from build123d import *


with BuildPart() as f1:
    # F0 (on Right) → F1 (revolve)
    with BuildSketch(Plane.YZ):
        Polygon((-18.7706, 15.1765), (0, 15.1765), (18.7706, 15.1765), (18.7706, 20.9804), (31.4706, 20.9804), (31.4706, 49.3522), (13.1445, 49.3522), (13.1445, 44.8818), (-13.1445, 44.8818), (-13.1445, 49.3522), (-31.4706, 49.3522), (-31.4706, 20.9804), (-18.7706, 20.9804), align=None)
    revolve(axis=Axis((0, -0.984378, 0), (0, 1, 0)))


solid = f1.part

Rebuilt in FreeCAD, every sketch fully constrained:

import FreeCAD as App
import Part
import Sketcher

V = App.Vector
Q = App.Units.Quantity


def add_polygon(sketch, points):
    """Adds a closed chain of lines whose ends are joined by coincident constraints."""
    first, n = sketch.GeometryCount, len(points)
    for a, b in zip(points, points[1:] + points[:1]):
        sketch.addGeometry(Part.LineSegment(App.Vector(*a, 0), App.Vector(*b, 0)), False)
    for i in range(n):
        sketch.addConstraint(Sketcher.Constraint("Coincident", first + i, 2, first + (i + 1) % n, 1))

doc = App.newDocument("Part")
params = doc.addObject("Spreadsheet::Sheet", "Params")
for row, (alias, value) in enumerate([
    ("sketch1_width", "0.5 in"),
    ("sketch1_width2", "1.478 in"),
    ("sketch1_width3", "1.035 in"),
    ("sketch1_height", "1.117 in"),
    ("sketch1_height2", "0.176 in"),
    ("revolution_angle", "360 deg"),
], start=1):
    params.set(f"A{row}", alias)
    params.set(f"B{row}", "=" + value)
    params.setAlias(f"B{row}", alias)

body = doc.addObject("PartDesign::Body", "Body")

sketch1 = doc.addObject("Sketcher::SketchObject", "Sketch")
body.addObject(sketch1)
sketch1.AttachmentSupport = (doc.YZ_Plane, [""])
sketch1.MapMode = "FlatFace"
add_polygon(sketch1, [(-18.8, 15.2), (18.8, 15.2), (18.8, 21), (31.5, 21), (31.5, 49.4), (13.1, 49.4), (13.1, 44.9), (-13.1, 44.9), (-13.1, 49.4), (-31.5, 49.4), (-31.5, 21), (-18.8, 21)])
sketch1.addConstraint([
    Sketcher.Constraint("Horizontal", 0),
    Sketcher.Constraint("Vertical", 1),
    Sketcher.Constraint("Horizontal", 2),
    Sketcher.Constraint("Vertical", 3),
    Sketcher.Constraint("Horizontal", 4),
    Sketcher.Constraint("Vertical", 5),
    Sketcher.Constraint("Horizontal", 6),
    Sketcher.Constraint("Vertical", 7),
    Sketcher.Constraint("Horizontal", 8),
    Sketcher.Constraint("Vertical", 9),
    Sketcher.Constraint("Horizontal", 10),
    Sketcher.Constraint("Vertical", 11),
    Sketcher.Constraint("Symmetric", 4, 2, 7, 2, -2),
    Sketcher.Constraint("Symmetric", 2, 2, 9, 2, -2),
    Sketcher.Constraint("Equal", 2, 10),
    Sketcher.Constraint("DistanceX", 2, 1, 2, 2, Q("0.5 in")),
    Sketcher.Constraint("DistanceX", 0, 1, 0, 2, Q("1.478 in")),
    Sketcher.Constraint("DistanceX", 6, 2, 6, 1, Q("1.035 in")),
    Sketcher.Constraint("DistanceY", 3, 1, 3, 2, Q("1.117 in")),
    Sketcher.Constraint("DistanceY", 5, 2, 5, 1, Q("0.176 in")),
    Sketcher.Constraint("DistanceY", 1, 1, 1, 2, Q("0.2285 in")),
    Sketcher.Constraint("DistanceY", -1, 1, 1, 2, Q("0.826 in")),
])
sketch1.setExpression("Constraints[27]", "Params.sketch1_width")
sketch1.setExpression("Constraints[28]", "Params.sketch1_width2")
sketch1.setExpression("Constraints[29]", "Params.sketch1_width3")
sketch1.setExpression("Constraints[30]", "Params.sketch1_height")
sketch1.setExpression("Constraints[31]", "Params.sketch1_height2")
revolution = doc.addObject("PartDesign::Revolution", "Revolution")
body.addObject(revolution)
revolution.Profile = sketch1
revolution.ReferenceAxis = (sketch1, ["H_Axis"])
revolution.setExpression("Angle", "Params.revolution_angle")

doc.recompute()
